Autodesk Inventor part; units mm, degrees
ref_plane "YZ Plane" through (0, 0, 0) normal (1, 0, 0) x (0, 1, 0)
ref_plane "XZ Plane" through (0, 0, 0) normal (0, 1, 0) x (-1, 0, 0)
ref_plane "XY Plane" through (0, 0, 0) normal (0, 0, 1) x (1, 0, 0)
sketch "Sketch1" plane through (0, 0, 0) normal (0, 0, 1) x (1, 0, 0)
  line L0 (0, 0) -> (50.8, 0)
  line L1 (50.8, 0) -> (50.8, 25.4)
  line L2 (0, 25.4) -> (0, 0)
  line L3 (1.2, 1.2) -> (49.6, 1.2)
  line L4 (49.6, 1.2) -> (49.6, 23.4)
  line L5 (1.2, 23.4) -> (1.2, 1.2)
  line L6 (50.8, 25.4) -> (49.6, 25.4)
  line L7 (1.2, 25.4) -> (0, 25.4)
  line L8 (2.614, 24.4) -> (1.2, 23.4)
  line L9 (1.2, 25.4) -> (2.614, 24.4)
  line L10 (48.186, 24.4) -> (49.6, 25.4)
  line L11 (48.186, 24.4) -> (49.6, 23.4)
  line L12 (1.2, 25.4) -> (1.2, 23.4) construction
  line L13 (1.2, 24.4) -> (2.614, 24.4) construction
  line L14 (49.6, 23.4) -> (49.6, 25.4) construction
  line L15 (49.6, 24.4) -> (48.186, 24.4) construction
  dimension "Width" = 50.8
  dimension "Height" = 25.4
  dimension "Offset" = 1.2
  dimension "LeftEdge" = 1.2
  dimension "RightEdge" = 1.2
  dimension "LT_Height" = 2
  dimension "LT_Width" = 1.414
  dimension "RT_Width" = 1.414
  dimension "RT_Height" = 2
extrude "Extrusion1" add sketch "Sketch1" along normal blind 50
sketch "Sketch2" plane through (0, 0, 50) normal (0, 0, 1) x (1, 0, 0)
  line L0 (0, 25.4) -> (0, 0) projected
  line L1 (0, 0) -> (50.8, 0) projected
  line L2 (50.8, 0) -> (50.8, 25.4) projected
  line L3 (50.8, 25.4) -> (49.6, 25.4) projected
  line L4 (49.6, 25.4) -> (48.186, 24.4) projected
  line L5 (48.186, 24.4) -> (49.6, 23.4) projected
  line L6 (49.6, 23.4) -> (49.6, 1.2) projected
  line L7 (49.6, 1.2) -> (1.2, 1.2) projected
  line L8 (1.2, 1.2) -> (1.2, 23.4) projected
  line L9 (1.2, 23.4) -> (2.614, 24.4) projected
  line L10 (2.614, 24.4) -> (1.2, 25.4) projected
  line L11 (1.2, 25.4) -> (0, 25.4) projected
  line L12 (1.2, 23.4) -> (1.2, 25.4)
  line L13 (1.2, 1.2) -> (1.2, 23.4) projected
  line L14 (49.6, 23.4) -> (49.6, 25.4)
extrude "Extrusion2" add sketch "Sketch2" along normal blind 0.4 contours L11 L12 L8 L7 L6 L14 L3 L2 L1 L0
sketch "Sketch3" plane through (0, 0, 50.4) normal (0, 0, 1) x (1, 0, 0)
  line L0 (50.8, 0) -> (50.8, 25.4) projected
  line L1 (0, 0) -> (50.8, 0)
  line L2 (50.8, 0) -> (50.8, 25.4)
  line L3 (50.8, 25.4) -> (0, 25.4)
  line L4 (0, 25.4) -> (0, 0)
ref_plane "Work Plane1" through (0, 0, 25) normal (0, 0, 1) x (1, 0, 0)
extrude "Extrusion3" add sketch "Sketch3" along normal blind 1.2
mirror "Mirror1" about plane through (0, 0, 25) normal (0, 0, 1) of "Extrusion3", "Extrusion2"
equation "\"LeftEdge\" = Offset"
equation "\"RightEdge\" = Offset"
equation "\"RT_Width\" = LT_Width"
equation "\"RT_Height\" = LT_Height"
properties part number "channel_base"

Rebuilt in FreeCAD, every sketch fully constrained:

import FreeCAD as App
import Part
import Sketcher

V = App.Vector

doc = App.newDocument("Part")
body = doc.addObject("PartDesign::Body", "Body")

sketch1 = body.newObject("Sketcher::SketchObject", "Sketch")
sketch1.AttachmentSupport = (doc.getObject("XY_Plane"), [""])
sketch1.MapMode = "FlatFace"
sketch1.addGeometry([
    Part.LineSegment(V(0, 25.4, 0), V(0, 0, 0)),
    Part.LineSegment(V(0, 0, 0), V(50.8, 0, 0)),
    Part.LineSegment(V(50.8, 0, 0), V(50.8, 25.4, 0)),
    Part.LineSegment(V(50.8, 25.4, 0), V(49.6, 25.4, 0)),
    Part.LineSegment(V(49.6, 25.4, 0), V(48.186, 24.4, 0)),
    Part.LineSegment(V(48.186, 24.4, 0), V(49.6, 23.4, 0)),
    Part.LineSegment(V(49.6, 23.4, 0), V(49.6, 1.2, 0)),
    Part.LineSegment(V(49.6, 1.2, 0), V(1.2, 1.2, 0)),
    Part.LineSegment(V(1.2, 1.2, 0), V(1.2, 23.4, 0)),
    Part.LineSegment(V(1.2, 23.4, 0), V(2.614, 24.4, 0)),
    Part.LineSegment(V(2.614, 24.4, 0), V(1.2, 25.4, 0)),
    Part.LineSegment(V(1.2, 25.4, 0), V(0, 25.4, 0)),
], False)
sketch1.addConstraint([
    Sketcher.Constraint("Coincident", 0, 2, 1, 1),
    Sketcher.Constraint("Coincident", 1, 2, 2, 1),
    Sketcher.Constraint("Coincident", 2, 2, 3, 1),
    Sketcher.Constraint("Coincident", 3, 2, 4, 1),
    Sketcher.Constraint("Coincident", 4, 2, 5, 1),
    Sketcher.Constraint("Coincident", 5, 2, 6, 1),
    Sketcher.Constraint("Coincident", 6, 2, 7, 1),
    Sketcher.Constraint("Coincident", 7, 2, 8, 1),
    Sketcher.Constraint("Coincident", 8, 2, 9, 1),
    Sketcher.Constraint("Coincident", 9, 2, 10, 1),
    Sketcher.Constraint("Coincident", 10, 2, 11, 1),
    Sketcher.Constraint("Coincident", 11, 2, 0, 1),
    Sketcher.Constraint("Vertical", 0),
    Sketcher.Constraint("Horizontal", 1),
    Sketcher.Constraint("Vertical", 2),
    Sketcher.Constraint("Horizontal", 3),
    Sketcher.Constraint("Vertical", 6),
    Sketcher.Constraint("Horizontal", 7),
    Sketcher.Constraint("Vertical", 8),
    Sketcher.Constraint("Horizontal", 11),
    Sketcher.Constraint("Coincident", 0, 2, -1, 1),
    Sketcher.Constraint("Parallel", 4, 9),
    Sketcher.Constraint("Parallel", 5, 10),
    Sketcher.Constraint("Horizontal", 5, 2, 8, 2),
    Sketcher.Constraint("Horizontal", 4, 2, 9, 2),
    Sketcher.Constraint("Horizontal", 3, 2, 10, 2),
    Sketcher.Constraint("Vertical", 3, 2, 5, 2),
    Sketcher.Constraint("Vertical", 8, 2, 10, 2),
    Sketcher.Constraint("Equal", 3, 11),
    Sketcher.Constraint("DistanceX", 1, 1, 1, 2, 50.8),
    Sketcher.Constraint("DistanceX", 3, 2, 3, 1, 1.2),
    Sketcher.Constraint("DistanceY", 0, 2, 0, 1, 25.4),
    Sketcher.Constraint("DistanceY", 5, 2, 3, 2, 2.0),
    Sketcher.Constraint("DistanceY", -1, 1, 6, 2, 1.2),
    Sketcher.Constraint("DistanceX", 4, 2, 3, 2, 1.414),
])
pad1 = body.newObject("PartDesign::Pad", "Pad")
pad1.Profile = sketch1
pad1.Length = 50

sketch2 = body.newObject("Sketcher::SketchObject", "Sketch001")
sketch2.AttachmentSupport = (doc.getObject("XY_Plane"), [""])
sketch2.MapMode = "FlatFace"
sketch2.AttachmentOffset = App.Placement(V(0, 0, 50), App.Rotation())
sketch2.addGeometry([
    Part.LineSegment(V(1.2, 25.4, 0), V(0, 25.4, 0)),
    Part.LineSegment(V(0, 25.4, 0), V(0, 0, 0)),
    Part.LineSegment(V(0, 0, 0), V(50.8, 0, 0)),
    Part.LineSegment(V(50.8, 0, 0), V(50.8, 25.4, 0)),
    Part.LineSegment(V(50.8, 25.4, 0), V(49.6, 25.4, 0)),
    Part.LineSegment(V(49.6, 25.4, 0), V(49.6, 1.2, 0)),
    Part.LineSegment(V(49.6, 1.2, 0), V(1.2, 1.2, 0)),
    Part.LineSegment(V(1.2, 1.2, 0), V(1.2, 25.4, 0)),
], False)
sketch2.addConstraint([
    Sketcher.Constraint("Coincident", 0, 2, 1, 1),
    Sketcher.Constraint("Coincident", 1, 2, 2, 1),
    Sketcher.Constraint("Coincident", 2, 2, 3, 1),
    Sketcher.Constraint("Coincident", 3, 2, 4, 1),
    Sketcher.Constraint("Coincident", 4, 2, 5, 1),
    Sketcher.Constraint("Coincident", 5, 2, 6, 1),
    Sketcher.Constraint("Coincident", 6, 2, 7, 1),
    Sketcher.Constraint("Coincident", 7, 2, 0, 1),
    Sketcher.Constraint("Horizontal", 0),
    Sketcher.Constraint("Vertical", 1),
    Sketcher.Constraint("Horizontal", 2),
    Sketcher.Constraint("Vertical", 3),
    Sketcher.Constraint("Horizontal", 4),
    Sketcher.Constraint("Vertical", 5),
    Sketcher.Constraint("Horizontal", 6),
    Sketcher.Constraint("Vertical", 7),
    Sketcher.Constraint("Coincident", 1, 2, -1, 1),
    Sketcher.Constraint("Horizontal", 0, 2, 3, 2),
    Sketcher.Constraint("Equal", 0, 4),
    Sketcher.Constraint("DistanceX", 0, 2, 0, 1, 1.2),
    Sketcher.Constraint("DistanceX", 2, 1, 2, 2, 50.8),
    Sketcher.Constraint("DistanceY", 1, 2, 1, 1, 25.4),
    Sketcher.Constraint("DistanceY", 5, 2, 5, 1, 24.2),
])
pad2 = body.newObject("PartDesign::Pad", "Pad001")
pad2.Profile = sketch2
pad2.Length = 0.4

sketch3 = body.newObject("Sketcher::SketchObject", "Sketch002")
sketch3.AttachmentSupport = (doc.getObject("XY_Plane"), [""])
sketch3.MapMode = "FlatFace"
sketch3.AttachmentOffset = App.Placement(V(0, 0, 50.4), App.Rotation())
sketch3.addGeometry([
    Part.LineSegment(V(0, 0, 0), V(50.8, 0, 0)),
    Part.LineSegment(V(50.8, 0, 0), V(50.8, 25.4, 0)),
    Part.LineSegment(V(50.8, 25.4, 0), V(0, 25.4, 0)),
    Part.LineSegment(V(0, 25.4, 0), V(0, 0, 0)),
], False)
sketch3.addConstraint([
    Sketcher.Constraint("Coincident", 0, 2, 1, 1),
    Sketcher.Constraint("Coincident", 1, 2, 2, 1),
    Sketcher.Constraint("Coincident", 2, 2, 3, 1),
    Sketcher.Constraint("Coincident", 3, 2, 0, 1),
    Sketcher.Constraint("Horizontal", 0),
    Sketcher.Constraint("Vertical", 1),
    Sketcher.Constraint("Horizontal", 2),
    Sketcher.Constraint("Vertical", 3),
    Sketcher.Constraint("Coincident", 3, 2, -1, 1),
    Sketcher.Constraint("DistanceX", 0, 1, 0, 2, 50.8),
    Sketcher.Constraint("DistanceY", 1, 1, 1, 2, 25.4),
])
pad3 = body.newObject("PartDesign::Pad", "Pad002")
pad3.Profile = sketch3
pad3.Length = 1.2
doc.recompute()

datumplane = body.newObject("PartDesign::Plane", "DatumPlane")
datumplane.AttachmentSupport = (doc.getObject("XY_Plane"), [""])
datumplane.MapMode = "FlatFace"
datumplane.AttachmentOffset = App.Placement(V(0, 0, 25), App.Rotation())
mirrored = body.newObject("PartDesign::Mirrored", "Mirrored")
mirrored.Originals = [pad3, pad2]
mirrored.MirrorPlane = (datumplane, [""])
body.Tip = mirrored

doc.recompute()
